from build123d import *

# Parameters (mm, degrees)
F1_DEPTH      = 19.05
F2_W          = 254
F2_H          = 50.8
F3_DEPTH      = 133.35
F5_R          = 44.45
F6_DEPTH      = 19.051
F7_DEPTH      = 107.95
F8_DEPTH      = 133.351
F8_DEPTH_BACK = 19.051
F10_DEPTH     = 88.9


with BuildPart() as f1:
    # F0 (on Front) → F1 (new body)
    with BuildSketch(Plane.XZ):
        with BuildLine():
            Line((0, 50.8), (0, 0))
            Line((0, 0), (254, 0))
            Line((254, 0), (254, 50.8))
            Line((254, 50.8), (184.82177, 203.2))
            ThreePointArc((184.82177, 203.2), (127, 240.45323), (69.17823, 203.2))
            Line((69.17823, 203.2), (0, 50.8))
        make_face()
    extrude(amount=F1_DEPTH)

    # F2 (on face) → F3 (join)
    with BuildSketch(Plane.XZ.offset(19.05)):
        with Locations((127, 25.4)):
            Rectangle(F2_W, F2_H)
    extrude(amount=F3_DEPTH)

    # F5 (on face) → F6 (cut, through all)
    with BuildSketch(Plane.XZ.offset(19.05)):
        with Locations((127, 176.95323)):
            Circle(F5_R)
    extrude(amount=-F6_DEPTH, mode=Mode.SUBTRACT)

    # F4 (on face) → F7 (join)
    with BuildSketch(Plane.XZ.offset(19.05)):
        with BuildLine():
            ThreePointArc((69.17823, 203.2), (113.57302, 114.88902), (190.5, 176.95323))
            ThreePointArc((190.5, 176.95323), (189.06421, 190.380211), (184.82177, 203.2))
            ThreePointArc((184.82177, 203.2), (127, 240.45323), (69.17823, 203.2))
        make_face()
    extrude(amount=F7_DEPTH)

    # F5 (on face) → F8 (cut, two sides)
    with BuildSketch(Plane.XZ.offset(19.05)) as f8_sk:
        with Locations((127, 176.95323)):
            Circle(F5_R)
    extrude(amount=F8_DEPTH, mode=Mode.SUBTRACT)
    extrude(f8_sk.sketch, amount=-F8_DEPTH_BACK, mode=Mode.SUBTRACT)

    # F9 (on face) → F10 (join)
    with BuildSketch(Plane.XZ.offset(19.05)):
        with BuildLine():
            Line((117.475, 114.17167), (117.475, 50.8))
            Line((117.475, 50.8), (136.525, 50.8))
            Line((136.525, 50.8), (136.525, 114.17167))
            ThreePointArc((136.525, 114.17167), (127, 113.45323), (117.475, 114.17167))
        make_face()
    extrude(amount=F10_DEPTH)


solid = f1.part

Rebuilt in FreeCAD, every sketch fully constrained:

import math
import FreeCAD as App
import Part
import Sketcher
from FreeCAD import Vector
Q = App.Units.Quantity

doc = App.newDocument("Part")
body = doc.addObject("PartDesign::Body", "Body")

# Sketch on XZ plane
sketch1 = doc.addObject("Sketcher::SketchObject", "Sketch")
body.addObject(sketch1)
sketch1.AttachmentSupport = (doc.XZ_Plane, [""])
sketch1.MapMode = "FlatFace"
sketch1.addGeometry([
    Part.LineSegment(Vector(0, 51, 0), Vector(0, 0, 0)),  # 0
    Part.LineSegment(Vector(0, 0, 0), Vector(254, 0, 0)),  # 1
    Part.LineSegment(Vector(254, 0, 0), Vector(254, 51, 0)),  # 2
    Part.LineSegment(Vector(254, 51, 0), Vector(185, 203, 0)),  # 3
    Part.ArcOfCircle(Part.Circle(Vector(127, 177, 0), Vector(0, 0, 1), 64), math.radians(24), math.radians(156)),  # 4
    Part.LineSegment(Vector(69, 203, 0), Vector(0, 51, 0)),  # 5
], False)
sketch1.addConstraint([
    Sketcher.Constraint("Coincident", 0, 2, 1, 1),
    Sketcher.Constraint("Coincident", 1, 2, 2, 1),
    Sketcher.Constraint("Coincident", 2, 2, 3, 1),
    Sketcher.Constraint("Tangent", 3, 2, 4, 1),
    Sketcher.Constraint("Tangent", 4, 2, 5, 1),
    Sketcher.Constraint("Coincident", 5, 2, 0, 1),
    Sketcher.Constraint("Vertical", 0),
    Sketcher.Constraint("Horizontal", 1),
    Sketcher.Constraint("Vertical", 2),
    Sketcher.Constraint("Coincident", 0, 2, -1, 1),
    Sketcher.Constraint("Horizontal", 3, 2, 4, 2),
    Sketcher.Constraint("Horizontal", 2, 2, 5, 2),
    Sketcher.Constraint("Radius", 4, Q("2.5 in")),
    Sketcher.Constraint("DistanceX", 1, 1, 1, 2, Q("10 in")),
    Sketcher.Constraint("DistanceY", 0, 2, 0, 1, Q("2 in")),
    Sketcher.Constraint("DistanceY", -1, 1, 3, 2, Q("8 in")),
])
pad1 = doc.addObject("PartDesign::Pad", "Pad")
body.addObject(pad1)
pad1.Profile = sketch1
pad1.Length = Q("0.75 in")

# Sketch on XZ plane
sketch2 = doc.addObject("Sketcher::SketchObject", "Sketch001")
body.addObject(sketch2)
sketch2.AttachmentSupport = (doc.XZ_Plane, [""])
sketch2.MapMode = "FlatFace"
sketch2.AttachmentOffset = App.Placement(Vector(0, 0, 0.75 * 25.4), App.Rotation())
sketch2.addGeometry([
    Part.LineSegment(Vector(0, 51, 0), Vector(0, 0, 0)),
    Part.LineSegment(Vector(0, 0, 0), Vector(254, 0, 0)),
    Part.LineSegment(Vector(254, 0, 0), Vector(254, 51, 0)),
    Part.LineSegment(Vector(254, 51, 0), Vector(0, 51, 0)),
], False)
sketch2.addConstraint([
    Sketcher.Constraint("Coincident", 0, 2, 1, 1),
    Sketcher.Constraint("Coincident", 1, 2, 2, 1),
    Sketcher.Constraint("Coincident", 2, 2, 3, 1),
    Sketcher.Constraint("Coincident", 3, 2, 0, 1),
    Sketcher.Constraint("Vertical", 0),
    Sketcher.Constraint("Horizontal", 1),
    Sketcher.Constraint("Vertical", 2),
    Sketcher.Constraint("Horizontal", 3),
    Sketcher.Constraint("Coincident", 0, 2, -1, 1),
    Sketcher.Constraint("DistanceX", 1, 1, 1, 2, Q("10 in")),
    Sketcher.Constraint("DistanceY", 0, 2, 0, 1, Q("2 in")),
])
pad2 = doc.addObject("PartDesign::Pad", "Pad001")
body.addObject(pad2)
pad2.Profile = sketch2
pad2.Length = Q("5.25 in")

# Sketch on XZ plane
sketch3 = doc.addObject("Sketcher::SketchObject", "Sketch002")
body.addObject(sketch3)
sketch3.AttachmentSupport = (doc.XZ_Plane, [""])
sketch3.MapMode = "FlatFace"
sketch3.AttachmentOffset = App.Placement(Vector(0, 0, 0.75 * 25.4), App.Rotation())
sketch3.addGeometry(Part.Circle(Vector(127, 177, 0), Vector(0, 0, 1), 44), False)
sketch3.addConstraint([
    Sketcher.Constraint("Diameter", 0, Q("3.5 in")),
    Sketcher.Constraint("DistanceX", -1, 1, 0, 3, Q("5 in")),
    Sketcher.Constraint("DistanceY", -1, 1, 0, 3, 176.95323),
])
pocket1 = doc.addObject("PartDesign::Pocket", "Pocket")
body.addObject(pocket1)
pocket1.Profile = sketch3
pocket1.Type = "ThroughAll"

# Sketch on XZ plane
sketch4 = doc.addObject("Sketcher::SketchObject", "Sketch003")
body.addObject(sketch4)
sketch4.AttachmentSupport = (doc.XZ_Plane, [""])
sketch4.MapMode = "FlatFace"
sketch4.AttachmentOffset = App.Placement(Vector(0, 0, 0.75 * 25.4), App.Rotation())
sketch4.addGeometry([
    Part.ArcOfCircle(Part.Circle(Vector(127, 177, 0), Vector(0, 0, 1), 64), math.radians(156), math.radians(360)),
    Part.ArcOfCircle(Part.Circle(Vector(127, 177, 0), Vector(0, 0, 1), 64), math.radians(0), math.radians(24)),
    Part.ArcOfCircle(Part.Circle(Vector(127, 177, 0), Vector(0, 0, 1), 64), math.radians(24), math.radians(156)),
], False)
sketch4.addConstraint([
    Sketcher.Constraint("Tangent", 0, 2, 1, 1),
    Sketcher.Constraint("Tangent", 1, 2, 2, 1),
    Sketcher.Constraint("Tangent", 2, 2, 0, 1),
    Sketcher.Constraint("Horizontal", 2, 3, 0, 2),
    Sketcher.Constraint("Horizontal", 1, 2, 2, 2),
    Sketcher.Constraint("Radius", 0, Q("2.5 in")),
    Sketcher.Constraint("DistanceX", -1, 1, 0, 3, Q("5 in")),
    Sketcher.Constraint("DistanceY", -1, 1, 1, 2, Q("8 in")),
    Sketcher.Constraint("DistanceY", -1, 1, 0, 3, 176.95323),
])
pad3 = doc.addObject("PartDesign::Pad", "Pad002")
body.addObject(pad3)
pad3.Profile = sketch4
pad3.Length = Q("4.25 in")

# Sketch on XZ plane
sketch5 = doc.addObject("Sketcher::SketchObject", "Sketch004")
body.addObject(sketch5)
sketch5.AttachmentSupport = (doc.XZ_Plane, [""])
sketch5.MapMode = "FlatFace"
sketch5.AttachmentOffset = App.Placement(Vector(0, 0, 0.75 * 25.4), App.Rotation())
sketch5.addGeometry(Part.Circle(Vector(127, 177, 0), Vector(0, 0, 1), 44), False)
sketch5.addConstraint([
    Sketcher.Constraint("Diameter", 0, Q("3.5 in")),
    Sketcher.Constraint("DistanceX", -1, 1, 0, 3, Q("5 in")),
    Sketcher.Constraint("DistanceY", -1, 1, 0, 3, 176.95323),
])
pocket2 = doc.addObject("PartDesign::Pocket", "Pocket001")
body.addObject(pocket2)
pocket2.Profile = sketch5
pocket2.Type = "ThroughAll"
pocket2.Midplane = True

# Sketch on XZ plane
sketch6 = doc.addObject("Sketcher::SketchObject", "Sketch005")
body.addObject(sketch6)
sketch6.AttachmentSupport = (doc.XZ_Plane, [""])
sketch6.MapMode = "FlatFace"
sketch6.AttachmentOffset = App.Placement(Vector(0, 0, 0.75 * 25.4), App.Rotation())
sketch6.addGeometry([
    Part.LineSegment(Vector(117, 114, 0), Vector(117, 51, 0)),
    Part.LineSegment(Vector(117, 51, 0), Vector(137, 51, 0)),
    Part.LineSegment(Vector(137, 51, 0), Vector(137, 114, 0)),
    Part.ArcOfCircle(Part.Circle(Vector(127, 177, 0), Vector(0, 0, 1), 63), math.radians(-98.63), math.radians(-81.37)),
], False)
sketch6.addConstraint([
    Sketcher.Constraint("Coincident", 0, 2, 1, 1),
    Sketcher.Constraint("Coincident", 1, 2, 2, 1),
    Sketcher.Constraint("Coincident", 2, 2, 3, 2),
    Sketcher.Constraint("Coincident", 3, 1, 0, 1),
    Sketcher.Constraint("Vertical", 0),
    Sketcher.Constraint("Horizontal", 1),
    Sketcher.Constraint("Vertical", 2),
    Sketcher.Constraint("Horizontal", 2, 2, 3, 1),
    Sketcher.Constraint("DistanceX", -1, 1, 3, 3, Q("5 in")),
    Sketcher.Constraint("DistanceY", -1, 1, 0, 2, Q("2 in")),
    Sketcher.Constraint("DistanceX", 1, 1, 1, 2, Q("0.75 in")),
    Sketcher.Constraint("Radius", 3, 63.499931),
    Sketcher.Constraint("DistanceY", 0, 2, 0, 1, 63.37167),
])
pad4 = doc.addObject("PartDesign::Pad", "Pad003")
body.addObject(pad4)
pad4.Profile = sketch6
pad4.Length = Q("3.5 in")

doc.recompute()
